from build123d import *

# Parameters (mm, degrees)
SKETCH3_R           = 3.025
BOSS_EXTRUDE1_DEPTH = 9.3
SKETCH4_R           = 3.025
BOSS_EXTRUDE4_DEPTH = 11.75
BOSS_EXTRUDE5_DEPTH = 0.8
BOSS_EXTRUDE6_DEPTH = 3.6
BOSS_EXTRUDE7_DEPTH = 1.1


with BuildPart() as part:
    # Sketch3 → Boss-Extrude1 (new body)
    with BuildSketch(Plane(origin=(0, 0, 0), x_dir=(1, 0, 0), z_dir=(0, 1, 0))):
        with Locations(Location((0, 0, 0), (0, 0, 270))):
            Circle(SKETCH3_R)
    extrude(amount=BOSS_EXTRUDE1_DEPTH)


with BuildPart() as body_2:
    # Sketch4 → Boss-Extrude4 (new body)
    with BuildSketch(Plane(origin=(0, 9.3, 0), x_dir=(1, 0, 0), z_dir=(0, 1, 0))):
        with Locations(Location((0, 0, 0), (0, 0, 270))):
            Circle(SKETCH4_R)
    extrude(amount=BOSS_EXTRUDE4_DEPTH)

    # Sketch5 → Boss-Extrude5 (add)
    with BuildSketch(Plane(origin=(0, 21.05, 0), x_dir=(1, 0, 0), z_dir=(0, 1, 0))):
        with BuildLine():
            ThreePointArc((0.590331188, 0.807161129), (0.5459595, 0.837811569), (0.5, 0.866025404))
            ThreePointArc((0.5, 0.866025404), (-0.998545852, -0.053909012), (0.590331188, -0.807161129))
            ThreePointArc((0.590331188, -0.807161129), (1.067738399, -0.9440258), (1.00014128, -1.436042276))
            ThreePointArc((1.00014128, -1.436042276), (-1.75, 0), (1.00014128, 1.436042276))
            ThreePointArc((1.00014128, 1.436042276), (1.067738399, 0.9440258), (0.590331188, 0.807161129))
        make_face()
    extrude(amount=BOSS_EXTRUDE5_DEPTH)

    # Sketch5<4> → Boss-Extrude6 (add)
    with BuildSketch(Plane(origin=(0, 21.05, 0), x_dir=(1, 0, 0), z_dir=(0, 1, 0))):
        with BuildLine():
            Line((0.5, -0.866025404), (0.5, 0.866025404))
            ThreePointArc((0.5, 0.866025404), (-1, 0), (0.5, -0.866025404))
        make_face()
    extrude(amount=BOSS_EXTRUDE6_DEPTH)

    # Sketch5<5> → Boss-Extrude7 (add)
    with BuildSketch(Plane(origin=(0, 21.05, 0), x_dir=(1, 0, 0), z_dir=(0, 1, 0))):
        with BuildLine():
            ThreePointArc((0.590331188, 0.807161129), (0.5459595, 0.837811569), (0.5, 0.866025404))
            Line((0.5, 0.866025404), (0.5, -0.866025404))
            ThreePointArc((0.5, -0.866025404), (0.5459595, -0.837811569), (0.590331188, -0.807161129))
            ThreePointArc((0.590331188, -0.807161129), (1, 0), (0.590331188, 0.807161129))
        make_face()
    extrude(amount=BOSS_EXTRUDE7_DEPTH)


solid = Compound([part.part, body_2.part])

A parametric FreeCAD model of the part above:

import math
import FreeCAD as App
import Part
import Sketcher
from FreeCAD import Vector
Q = App.Units.Quantity

doc = App.newDocument("Part")
body = doc.addObject("PartDesign::Body", "Body")

sketch1 = doc.addObject("Sketcher::SketchObject", "Sketch")
body.addObject(sketch1)
sketch1.AttachmentSupport = (doc.XZ_Plane, [""])
sketch1.MapMode = "FlatFace"
sketch1.addGeometry(Part.Circle(Vector(0, 0, 0), Vector(0, 0, 1), 3.025), False)
sketch1.addConstraint(Sketcher.Constraint("Coincident", 0, 3, -1, 1))
sketch1.addConstraint(Sketcher.Constraint("Diameter", 0, Q("6.05 mm")))
pad1 = doc.addObject("PartDesign::Pad", "Pad")
body.addObject(pad1)
pad1.Profile = sketch1
pad1.Length = 9.3
pad1.Reversed = True
body2 = doc.addObject("PartDesign::Body", "Body001")

sketch2 = doc.addObject("Sketcher::SketchObject", "Sketch001")
body2.addObject(sketch2)
sketch2.AttachmentSupport = (doc.getObject("XZ_Plane001"), [""])
sketch2.MapMode = "FlatFace"
sketch2.AttachmentOffset = App.Placement(Vector(0, 0, -9.3), App.Rotation())
sketch2.addGeometry(Part.Circle(Vector(0, 0, 0), Vector(0, 0, 1), 3.025), False)
sketch2.addConstraint(Sketcher.Constraint("Coincident", 0, 3, -1, 1))
sketch2.addConstraint(Sketcher.Constraint("Diameter", 0, Q("6.05 mm")))
pad2 = doc.addObject("PartDesign::Pad", "Pad001")
body2.addObject(pad2)
pad2.Profile = sketch2
pad2.Length = 11.75
pad2.Reversed = True

sketch3 = doc.addObject("Sketcher::SketchObject", "Sketch002")
body2.addObject(sketch3)
sketch3.AttachmentSupport = (doc.getObject("XZ_Plane001"), [""])
sketch3.MapMode = "FlatFace"
sketch3.AttachmentOffset = App.Placement(Vector(0, 0, -21.05), App.Rotation())
sketch3.addGeometry(Part.ArcOfCircle(Part.Circle(Vector(0, 0, 0), Vector(0, 0, 1), 1), math.radians(-60.000001), math.radians(-53.819485)), False)
sketch3.addGeometry(Part.ArcOfCircle(Part.Circle(Vector(0.750071, -1.151034, 0), Vector(0, 0, 1), 0.379164), math.radians(-48.735804), math.radians(114.916318)), False)
sketch3.addGeometry(Part.ArcOfCircle(Part.Circle(Vector(0, 0, 0), Vector(0, 0, 1), 1.75), math.radians(55.144459), math.radians(304.855541)), False)
sketch3.addGeometry(Part.ArcOfCircle(Part.Circle(Vector(0.750071, 1.151034, 0), Vector(0, 0, 1), 0.379164), math.radians(-114.916318), math.radians(48.735804)), False)
sketch3.addGeometry(Part.ArcOfCircle(Part.Circle(Vector(0, 0, 0), Vector(0, 0, 1), 1), math.radians(53.819486), math.radians(300)), False)
sketch3.addConstraint(Sketcher.Constraint("Coincident", 0, 2, 1, 2))
sketch3.addConstraint(Sketcher.Constraint("Coincident", 1, 1, 2, 2))
sketch3.addConstraint(Sketcher.Constraint("Coincident", 2, 1, 3, 2))
sketch3.addConstraint(Sketcher.Constraint("Coincident", 3, 1, 4, 1))
sketch3.addConstraint(Sketcher.Constraint("Tangent", 4, 2, 0, 1))
sketch3.addConstraint(Sketcher.Constraint("Coincident", 0, 3, -1, 1))
sketch3.addConstraint(Sketcher.Constraint("Coincident", 2, 3, -1, 1))
sketch3.addConstraint(Sketcher.Constraint("Equal", 1, 3))
sketch3.addConstraint(Sketcher.Constraint("Equal", 0, 4))
sketch3.addConstraint(Sketcher.Constraint("Symmetric", 1, 3, 3, 3, -1))
sketch3.addConstraint(Sketcher.Constraint("Radius", 0, Q("1 mm")))
sketch3.addConstraint(Sketcher.Constraint("Radius", 2, Q("1.75 mm")))
sketch3.addConstraint(Sketcher.Constraint("DistanceX", -1, 1, 4, 2, Q("0.5 mm")))
sketch3.addConstraint(Sketcher.Constraint("Radius", 1, Q("0.379164 mm")))
sketch3.addConstraint(Sketcher.Constraint("DistanceX", -1, 1, 1, 3, Q("0.750071 mm")))
sketch3.addConstraint(Sketcher.Constraint("DistanceX", -1, 1, 0, 2, Q("0.590331 mm")))
pad3 = doc.addObject("PartDesign::Pad", "Pad002")
body2.addObject(pad3)
pad3.Profile = sketch3
pad3.Length = 0.8
pad3.Reversed = True

sketch4 = doc.addObject("Sketcher::SketchObject", "Sketch003")
body2.addObject(sketch4)
sketch4.AttachmentSupport = (doc.getObject("XZ_Plane001"), [""])
sketch4.MapMode = "FlatFace"
sketch4.AttachmentOffset = App.Placement(Vector(0, 0, -21.05), App.Rotation())
sketch4.addGeometry(Part.LineSegment(Vector(0.5, 0.866025, 0), Vector(0.5, -0.866025, 0)), False)
sketch4.addGeometry(Part.ArcOfCircle(Part.Circle(Vector(0, 0, 0), Vector(0, 0, 1), 1), math.radians(60), math.radians(300)), False)
sketch4.addConstraint(Sketcher.Constraint("Coincident", 0, 1, 1, 1))
sketch4.addConstraint(Sketcher.Constraint("Coincident", 1, 2, 0, 2))
sketch4.addConstraint(Sketcher.Constraint("Vertical", 0))
sketch4.addConstraint(Sketcher.Constraint("Coincident", 1, 3, -1, 1))
sketch4.addConstraint(Sketcher.Constraint("Radius", 1, Q("1 mm")))
sketch4.addConstraint(Sketcher.Constraint("DistanceX", -1, 1, 0, 1, Q("0.5 mm")))
pad4 = doc.addObject("PartDesign::Pad", "Pad003")
body2.addObject(pad4)
pad4.Profile = sketch4
pad4.Length = 3.6
pad4.Reversed = True

sketch5 = doc.addObject("Sketcher::SketchObject", "Sketch004")
body2.addObject(sketch5)
sketch5.AttachmentSupport = (doc.getObject("XZ_Plane001"), [""])
sketch5.MapMode = "FlatFace"
sketch5.AttachmentOffset = App.Placement(Vector(0, 0, -21.05), App.Rotation())
sketch5.addGeometry(Part.ArcOfCircle(Part.Circle(Vector(0, 0, 0), Vector(0, 0, 1), 1), math.radians(-60.000001), math.radians(-53.819485)), False)
sketch5.addGeometry(Part.LineSegment(Vector(0.5, -0.866025, 0), Vector(0.5, 0.866025, 0)), False)
sketch5.addGeometry(Part.ArcOfCircle(Part.Circle(Vector(0, 0, 0), Vector(0, 0, 1), 1), math.radians(53.819485), math.radians(60.000001)), False)
sketch5.addGeometry(Part.ArcOfCircle(Part.Circle(Vector(0, 0, 0), Vector(0, 0, 1), 1), math.radians(-53.819486), math.radians(53.819486)), False)
sketch5.addConstraint(Sketcher.Constraint("Coincident", 0, 1, 1, 1))
sketch5.addConstraint(Sketcher.Constraint("Coincident", 1, 2, 2, 2))
sketch5.addConstraint(Sketcher.Constraint("Tangent", 2, 1, 3, 2))
sketch5.addConstraint(Sketcher.Constraint("Tangent", 3, 1, 0, 2))
sketch5.addConstraint(Sketcher.Constraint("Vertical", 1))
sketch5.addConstraint(Sketcher.Constraint("Coincident", 0, 3, -1, 1))
sketch5.addConstraint(Sketcher.Constraint("Coincident", 2, 3, -1, 1))
sketch5.addConstraint(Sketcher.Constraint("Vertical", 2, 1, 3, 1))
sketch5.addConstraint(Sketcher.Constraint("Radius", 0, Q("1 mm")))
sketch5.addConstraint(Sketcher.Constraint("DistanceX", -1, 1, 0, 1, Q("0.5 mm")))
sketch5.addConstraint(Sketcher.Constraint("DistanceX", -1, 1, 2, 1, Q("0.590331 mm")))
pad5 = doc.addObject("PartDesign::Pad", "Pad004")
body2.addObject(pad5)
pad5.Profile = sketch5
pad5.Length = 1.1
pad5.Reversed = True

doc.recompute()
